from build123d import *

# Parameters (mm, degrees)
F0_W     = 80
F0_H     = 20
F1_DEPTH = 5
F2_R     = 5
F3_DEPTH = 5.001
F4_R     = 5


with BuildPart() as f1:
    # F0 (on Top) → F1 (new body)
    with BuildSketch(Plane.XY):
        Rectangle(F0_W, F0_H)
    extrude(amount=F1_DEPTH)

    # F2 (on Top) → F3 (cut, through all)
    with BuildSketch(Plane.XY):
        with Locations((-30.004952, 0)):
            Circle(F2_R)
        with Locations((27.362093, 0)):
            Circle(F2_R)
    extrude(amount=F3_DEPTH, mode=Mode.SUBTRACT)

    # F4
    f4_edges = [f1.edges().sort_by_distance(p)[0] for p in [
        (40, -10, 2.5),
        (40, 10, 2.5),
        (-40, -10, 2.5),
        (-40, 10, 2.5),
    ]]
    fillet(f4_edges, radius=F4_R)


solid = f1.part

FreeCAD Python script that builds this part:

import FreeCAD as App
import Part
import Sketcher

V = App.Vector


def edges_at(feature, points):
    """Names of the edges that pass closest to the given points."""
    edges = feature.Shape.Edges
    near = lambda p: min(range(len(edges)), key=lambda i: edges[i].distToShape(Part.Vertex(*p))[0])
    return sorted({f"Edge{near(p) + 1}" for p in points})

doc = App.newDocument("Part")
params = doc.addObject("Spreadsheet::Sheet", "Params")
for row, (alias, value) in enumerate([
    ("sketch1_width", "80 mm"),
    ("sketch1_height", "20 mm"),
    ("pad1_length", "5 mm"),
    ("sketch2_diameter", "10 mm"),
    ("fillet_radius", "5 mm"),
], start=1):
    params.set(f"A{row}", alias)
    params.set(f"B{row}", "=" + value)
    params.setAlias(f"B{row}", alias)

body = doc.addObject("PartDesign::Body", "Body")

# Sketch on XY plane
sketch1 = body.newObject("Sketcher::SketchObject", "Sketch")
sketch1.AttachmentSupport = (doc.getObject("XY_Plane"), [""])
sketch1.MapMode = "FlatFace"
sketch1.addGeometry([
    Part.LineSegment(V(-40, 10, 0), V(-40, -10, 0)),
    Part.LineSegment(V(-40, -10, 0), V(40, -10, 0)),
    Part.LineSegment(V(40, -10, 0), V(40, 10, 0)),
    Part.LineSegment(V(40, 10, 0), V(-40, 10, 0)),
], False)
sketch1.addConstraint([
    Sketcher.Constraint("Coincident", 0, 2, 1, 1),
    Sketcher.Constraint("Coincident", 1, 2, 2, 1),
    Sketcher.Constraint("Coincident", 2, 2, 3, 1),
    Sketcher.Constraint("Coincident", 3, 2, 0, 1),
    Sketcher.Constraint("Vertical", 0),
    Sketcher.Constraint("Horizontal", 1),
    Sketcher.Constraint("Vertical", 2),
    Sketcher.Constraint("Horizontal", 3),
    Sketcher.Constraint("Symmetric", 0, 2, 2, 2, -1, 1),
    Sketcher.Constraint("DistanceX", 1, 1, 1, 2, 80.0),
    Sketcher.Constraint("DistanceY", 0, 2, 0, 1, 20.0),
])
sketch1.setExpression("Constraints[9]", "Params.sketch1_width")
sketch1.setExpression("Constraints[10]", "Params.sketch1_height")
pad1 = body.newObject("PartDesign::Pad", "Pad")
pad1.Profile = sketch1
pad1.setExpression("Length", "Params.pad1_length")

# Sketch on XY plane
sketch2 = body.newObject("Sketcher::SketchObject", "Sketch001")
sketch2.AttachmentSupport = (doc.getObject("XY_Plane"), [""])
sketch2.MapMode = "FlatFace"
sketch2.addGeometry([
    Part.Circle(V(-30, 0, 0), V(0, 0, 1), 5),
    Part.Circle(V(27, 0, 0), V(0, 0, 1), 5),
], False)
sketch2.addConstraint([
    Sketcher.Constraint("Equal", 0, 1),
    Sketcher.Constraint("PointOnObject", 0, 3, -1),
    Sketcher.Constraint("PointOnObject", 1, 3, -1),
    Sketcher.Constraint("Diameter", 0, 10.0),
    Sketcher.Constraint("DistanceX", 0, 3, -1, 1, 30.004952),
    Sketcher.Constraint("DistanceX", -1, 1, 1, 3, 27.362093),
])
sketch2.setExpression("Constraints[3]", "Params.sketch2_diameter")
pocket1 = body.newObject("PartDesign::Pocket", "Pocket")
pocket1.Profile = sketch2
pocket1.Type = "ThroughAll"
pocket1.Reversed = True
doc.recompute()

fillet = body.newObject("PartDesign::Fillet", "Fillet")
fillet.Base = (pocket1, edges_at(pocket1, [
    (40, -10, 2.5),
    (40, 10, 2.5),
    (-40, -10, 2.5),
    (-40, 10, 2.5),
]))
fillet.setExpression("Radius", "Params.fillet_radius")

doc.recompute()
